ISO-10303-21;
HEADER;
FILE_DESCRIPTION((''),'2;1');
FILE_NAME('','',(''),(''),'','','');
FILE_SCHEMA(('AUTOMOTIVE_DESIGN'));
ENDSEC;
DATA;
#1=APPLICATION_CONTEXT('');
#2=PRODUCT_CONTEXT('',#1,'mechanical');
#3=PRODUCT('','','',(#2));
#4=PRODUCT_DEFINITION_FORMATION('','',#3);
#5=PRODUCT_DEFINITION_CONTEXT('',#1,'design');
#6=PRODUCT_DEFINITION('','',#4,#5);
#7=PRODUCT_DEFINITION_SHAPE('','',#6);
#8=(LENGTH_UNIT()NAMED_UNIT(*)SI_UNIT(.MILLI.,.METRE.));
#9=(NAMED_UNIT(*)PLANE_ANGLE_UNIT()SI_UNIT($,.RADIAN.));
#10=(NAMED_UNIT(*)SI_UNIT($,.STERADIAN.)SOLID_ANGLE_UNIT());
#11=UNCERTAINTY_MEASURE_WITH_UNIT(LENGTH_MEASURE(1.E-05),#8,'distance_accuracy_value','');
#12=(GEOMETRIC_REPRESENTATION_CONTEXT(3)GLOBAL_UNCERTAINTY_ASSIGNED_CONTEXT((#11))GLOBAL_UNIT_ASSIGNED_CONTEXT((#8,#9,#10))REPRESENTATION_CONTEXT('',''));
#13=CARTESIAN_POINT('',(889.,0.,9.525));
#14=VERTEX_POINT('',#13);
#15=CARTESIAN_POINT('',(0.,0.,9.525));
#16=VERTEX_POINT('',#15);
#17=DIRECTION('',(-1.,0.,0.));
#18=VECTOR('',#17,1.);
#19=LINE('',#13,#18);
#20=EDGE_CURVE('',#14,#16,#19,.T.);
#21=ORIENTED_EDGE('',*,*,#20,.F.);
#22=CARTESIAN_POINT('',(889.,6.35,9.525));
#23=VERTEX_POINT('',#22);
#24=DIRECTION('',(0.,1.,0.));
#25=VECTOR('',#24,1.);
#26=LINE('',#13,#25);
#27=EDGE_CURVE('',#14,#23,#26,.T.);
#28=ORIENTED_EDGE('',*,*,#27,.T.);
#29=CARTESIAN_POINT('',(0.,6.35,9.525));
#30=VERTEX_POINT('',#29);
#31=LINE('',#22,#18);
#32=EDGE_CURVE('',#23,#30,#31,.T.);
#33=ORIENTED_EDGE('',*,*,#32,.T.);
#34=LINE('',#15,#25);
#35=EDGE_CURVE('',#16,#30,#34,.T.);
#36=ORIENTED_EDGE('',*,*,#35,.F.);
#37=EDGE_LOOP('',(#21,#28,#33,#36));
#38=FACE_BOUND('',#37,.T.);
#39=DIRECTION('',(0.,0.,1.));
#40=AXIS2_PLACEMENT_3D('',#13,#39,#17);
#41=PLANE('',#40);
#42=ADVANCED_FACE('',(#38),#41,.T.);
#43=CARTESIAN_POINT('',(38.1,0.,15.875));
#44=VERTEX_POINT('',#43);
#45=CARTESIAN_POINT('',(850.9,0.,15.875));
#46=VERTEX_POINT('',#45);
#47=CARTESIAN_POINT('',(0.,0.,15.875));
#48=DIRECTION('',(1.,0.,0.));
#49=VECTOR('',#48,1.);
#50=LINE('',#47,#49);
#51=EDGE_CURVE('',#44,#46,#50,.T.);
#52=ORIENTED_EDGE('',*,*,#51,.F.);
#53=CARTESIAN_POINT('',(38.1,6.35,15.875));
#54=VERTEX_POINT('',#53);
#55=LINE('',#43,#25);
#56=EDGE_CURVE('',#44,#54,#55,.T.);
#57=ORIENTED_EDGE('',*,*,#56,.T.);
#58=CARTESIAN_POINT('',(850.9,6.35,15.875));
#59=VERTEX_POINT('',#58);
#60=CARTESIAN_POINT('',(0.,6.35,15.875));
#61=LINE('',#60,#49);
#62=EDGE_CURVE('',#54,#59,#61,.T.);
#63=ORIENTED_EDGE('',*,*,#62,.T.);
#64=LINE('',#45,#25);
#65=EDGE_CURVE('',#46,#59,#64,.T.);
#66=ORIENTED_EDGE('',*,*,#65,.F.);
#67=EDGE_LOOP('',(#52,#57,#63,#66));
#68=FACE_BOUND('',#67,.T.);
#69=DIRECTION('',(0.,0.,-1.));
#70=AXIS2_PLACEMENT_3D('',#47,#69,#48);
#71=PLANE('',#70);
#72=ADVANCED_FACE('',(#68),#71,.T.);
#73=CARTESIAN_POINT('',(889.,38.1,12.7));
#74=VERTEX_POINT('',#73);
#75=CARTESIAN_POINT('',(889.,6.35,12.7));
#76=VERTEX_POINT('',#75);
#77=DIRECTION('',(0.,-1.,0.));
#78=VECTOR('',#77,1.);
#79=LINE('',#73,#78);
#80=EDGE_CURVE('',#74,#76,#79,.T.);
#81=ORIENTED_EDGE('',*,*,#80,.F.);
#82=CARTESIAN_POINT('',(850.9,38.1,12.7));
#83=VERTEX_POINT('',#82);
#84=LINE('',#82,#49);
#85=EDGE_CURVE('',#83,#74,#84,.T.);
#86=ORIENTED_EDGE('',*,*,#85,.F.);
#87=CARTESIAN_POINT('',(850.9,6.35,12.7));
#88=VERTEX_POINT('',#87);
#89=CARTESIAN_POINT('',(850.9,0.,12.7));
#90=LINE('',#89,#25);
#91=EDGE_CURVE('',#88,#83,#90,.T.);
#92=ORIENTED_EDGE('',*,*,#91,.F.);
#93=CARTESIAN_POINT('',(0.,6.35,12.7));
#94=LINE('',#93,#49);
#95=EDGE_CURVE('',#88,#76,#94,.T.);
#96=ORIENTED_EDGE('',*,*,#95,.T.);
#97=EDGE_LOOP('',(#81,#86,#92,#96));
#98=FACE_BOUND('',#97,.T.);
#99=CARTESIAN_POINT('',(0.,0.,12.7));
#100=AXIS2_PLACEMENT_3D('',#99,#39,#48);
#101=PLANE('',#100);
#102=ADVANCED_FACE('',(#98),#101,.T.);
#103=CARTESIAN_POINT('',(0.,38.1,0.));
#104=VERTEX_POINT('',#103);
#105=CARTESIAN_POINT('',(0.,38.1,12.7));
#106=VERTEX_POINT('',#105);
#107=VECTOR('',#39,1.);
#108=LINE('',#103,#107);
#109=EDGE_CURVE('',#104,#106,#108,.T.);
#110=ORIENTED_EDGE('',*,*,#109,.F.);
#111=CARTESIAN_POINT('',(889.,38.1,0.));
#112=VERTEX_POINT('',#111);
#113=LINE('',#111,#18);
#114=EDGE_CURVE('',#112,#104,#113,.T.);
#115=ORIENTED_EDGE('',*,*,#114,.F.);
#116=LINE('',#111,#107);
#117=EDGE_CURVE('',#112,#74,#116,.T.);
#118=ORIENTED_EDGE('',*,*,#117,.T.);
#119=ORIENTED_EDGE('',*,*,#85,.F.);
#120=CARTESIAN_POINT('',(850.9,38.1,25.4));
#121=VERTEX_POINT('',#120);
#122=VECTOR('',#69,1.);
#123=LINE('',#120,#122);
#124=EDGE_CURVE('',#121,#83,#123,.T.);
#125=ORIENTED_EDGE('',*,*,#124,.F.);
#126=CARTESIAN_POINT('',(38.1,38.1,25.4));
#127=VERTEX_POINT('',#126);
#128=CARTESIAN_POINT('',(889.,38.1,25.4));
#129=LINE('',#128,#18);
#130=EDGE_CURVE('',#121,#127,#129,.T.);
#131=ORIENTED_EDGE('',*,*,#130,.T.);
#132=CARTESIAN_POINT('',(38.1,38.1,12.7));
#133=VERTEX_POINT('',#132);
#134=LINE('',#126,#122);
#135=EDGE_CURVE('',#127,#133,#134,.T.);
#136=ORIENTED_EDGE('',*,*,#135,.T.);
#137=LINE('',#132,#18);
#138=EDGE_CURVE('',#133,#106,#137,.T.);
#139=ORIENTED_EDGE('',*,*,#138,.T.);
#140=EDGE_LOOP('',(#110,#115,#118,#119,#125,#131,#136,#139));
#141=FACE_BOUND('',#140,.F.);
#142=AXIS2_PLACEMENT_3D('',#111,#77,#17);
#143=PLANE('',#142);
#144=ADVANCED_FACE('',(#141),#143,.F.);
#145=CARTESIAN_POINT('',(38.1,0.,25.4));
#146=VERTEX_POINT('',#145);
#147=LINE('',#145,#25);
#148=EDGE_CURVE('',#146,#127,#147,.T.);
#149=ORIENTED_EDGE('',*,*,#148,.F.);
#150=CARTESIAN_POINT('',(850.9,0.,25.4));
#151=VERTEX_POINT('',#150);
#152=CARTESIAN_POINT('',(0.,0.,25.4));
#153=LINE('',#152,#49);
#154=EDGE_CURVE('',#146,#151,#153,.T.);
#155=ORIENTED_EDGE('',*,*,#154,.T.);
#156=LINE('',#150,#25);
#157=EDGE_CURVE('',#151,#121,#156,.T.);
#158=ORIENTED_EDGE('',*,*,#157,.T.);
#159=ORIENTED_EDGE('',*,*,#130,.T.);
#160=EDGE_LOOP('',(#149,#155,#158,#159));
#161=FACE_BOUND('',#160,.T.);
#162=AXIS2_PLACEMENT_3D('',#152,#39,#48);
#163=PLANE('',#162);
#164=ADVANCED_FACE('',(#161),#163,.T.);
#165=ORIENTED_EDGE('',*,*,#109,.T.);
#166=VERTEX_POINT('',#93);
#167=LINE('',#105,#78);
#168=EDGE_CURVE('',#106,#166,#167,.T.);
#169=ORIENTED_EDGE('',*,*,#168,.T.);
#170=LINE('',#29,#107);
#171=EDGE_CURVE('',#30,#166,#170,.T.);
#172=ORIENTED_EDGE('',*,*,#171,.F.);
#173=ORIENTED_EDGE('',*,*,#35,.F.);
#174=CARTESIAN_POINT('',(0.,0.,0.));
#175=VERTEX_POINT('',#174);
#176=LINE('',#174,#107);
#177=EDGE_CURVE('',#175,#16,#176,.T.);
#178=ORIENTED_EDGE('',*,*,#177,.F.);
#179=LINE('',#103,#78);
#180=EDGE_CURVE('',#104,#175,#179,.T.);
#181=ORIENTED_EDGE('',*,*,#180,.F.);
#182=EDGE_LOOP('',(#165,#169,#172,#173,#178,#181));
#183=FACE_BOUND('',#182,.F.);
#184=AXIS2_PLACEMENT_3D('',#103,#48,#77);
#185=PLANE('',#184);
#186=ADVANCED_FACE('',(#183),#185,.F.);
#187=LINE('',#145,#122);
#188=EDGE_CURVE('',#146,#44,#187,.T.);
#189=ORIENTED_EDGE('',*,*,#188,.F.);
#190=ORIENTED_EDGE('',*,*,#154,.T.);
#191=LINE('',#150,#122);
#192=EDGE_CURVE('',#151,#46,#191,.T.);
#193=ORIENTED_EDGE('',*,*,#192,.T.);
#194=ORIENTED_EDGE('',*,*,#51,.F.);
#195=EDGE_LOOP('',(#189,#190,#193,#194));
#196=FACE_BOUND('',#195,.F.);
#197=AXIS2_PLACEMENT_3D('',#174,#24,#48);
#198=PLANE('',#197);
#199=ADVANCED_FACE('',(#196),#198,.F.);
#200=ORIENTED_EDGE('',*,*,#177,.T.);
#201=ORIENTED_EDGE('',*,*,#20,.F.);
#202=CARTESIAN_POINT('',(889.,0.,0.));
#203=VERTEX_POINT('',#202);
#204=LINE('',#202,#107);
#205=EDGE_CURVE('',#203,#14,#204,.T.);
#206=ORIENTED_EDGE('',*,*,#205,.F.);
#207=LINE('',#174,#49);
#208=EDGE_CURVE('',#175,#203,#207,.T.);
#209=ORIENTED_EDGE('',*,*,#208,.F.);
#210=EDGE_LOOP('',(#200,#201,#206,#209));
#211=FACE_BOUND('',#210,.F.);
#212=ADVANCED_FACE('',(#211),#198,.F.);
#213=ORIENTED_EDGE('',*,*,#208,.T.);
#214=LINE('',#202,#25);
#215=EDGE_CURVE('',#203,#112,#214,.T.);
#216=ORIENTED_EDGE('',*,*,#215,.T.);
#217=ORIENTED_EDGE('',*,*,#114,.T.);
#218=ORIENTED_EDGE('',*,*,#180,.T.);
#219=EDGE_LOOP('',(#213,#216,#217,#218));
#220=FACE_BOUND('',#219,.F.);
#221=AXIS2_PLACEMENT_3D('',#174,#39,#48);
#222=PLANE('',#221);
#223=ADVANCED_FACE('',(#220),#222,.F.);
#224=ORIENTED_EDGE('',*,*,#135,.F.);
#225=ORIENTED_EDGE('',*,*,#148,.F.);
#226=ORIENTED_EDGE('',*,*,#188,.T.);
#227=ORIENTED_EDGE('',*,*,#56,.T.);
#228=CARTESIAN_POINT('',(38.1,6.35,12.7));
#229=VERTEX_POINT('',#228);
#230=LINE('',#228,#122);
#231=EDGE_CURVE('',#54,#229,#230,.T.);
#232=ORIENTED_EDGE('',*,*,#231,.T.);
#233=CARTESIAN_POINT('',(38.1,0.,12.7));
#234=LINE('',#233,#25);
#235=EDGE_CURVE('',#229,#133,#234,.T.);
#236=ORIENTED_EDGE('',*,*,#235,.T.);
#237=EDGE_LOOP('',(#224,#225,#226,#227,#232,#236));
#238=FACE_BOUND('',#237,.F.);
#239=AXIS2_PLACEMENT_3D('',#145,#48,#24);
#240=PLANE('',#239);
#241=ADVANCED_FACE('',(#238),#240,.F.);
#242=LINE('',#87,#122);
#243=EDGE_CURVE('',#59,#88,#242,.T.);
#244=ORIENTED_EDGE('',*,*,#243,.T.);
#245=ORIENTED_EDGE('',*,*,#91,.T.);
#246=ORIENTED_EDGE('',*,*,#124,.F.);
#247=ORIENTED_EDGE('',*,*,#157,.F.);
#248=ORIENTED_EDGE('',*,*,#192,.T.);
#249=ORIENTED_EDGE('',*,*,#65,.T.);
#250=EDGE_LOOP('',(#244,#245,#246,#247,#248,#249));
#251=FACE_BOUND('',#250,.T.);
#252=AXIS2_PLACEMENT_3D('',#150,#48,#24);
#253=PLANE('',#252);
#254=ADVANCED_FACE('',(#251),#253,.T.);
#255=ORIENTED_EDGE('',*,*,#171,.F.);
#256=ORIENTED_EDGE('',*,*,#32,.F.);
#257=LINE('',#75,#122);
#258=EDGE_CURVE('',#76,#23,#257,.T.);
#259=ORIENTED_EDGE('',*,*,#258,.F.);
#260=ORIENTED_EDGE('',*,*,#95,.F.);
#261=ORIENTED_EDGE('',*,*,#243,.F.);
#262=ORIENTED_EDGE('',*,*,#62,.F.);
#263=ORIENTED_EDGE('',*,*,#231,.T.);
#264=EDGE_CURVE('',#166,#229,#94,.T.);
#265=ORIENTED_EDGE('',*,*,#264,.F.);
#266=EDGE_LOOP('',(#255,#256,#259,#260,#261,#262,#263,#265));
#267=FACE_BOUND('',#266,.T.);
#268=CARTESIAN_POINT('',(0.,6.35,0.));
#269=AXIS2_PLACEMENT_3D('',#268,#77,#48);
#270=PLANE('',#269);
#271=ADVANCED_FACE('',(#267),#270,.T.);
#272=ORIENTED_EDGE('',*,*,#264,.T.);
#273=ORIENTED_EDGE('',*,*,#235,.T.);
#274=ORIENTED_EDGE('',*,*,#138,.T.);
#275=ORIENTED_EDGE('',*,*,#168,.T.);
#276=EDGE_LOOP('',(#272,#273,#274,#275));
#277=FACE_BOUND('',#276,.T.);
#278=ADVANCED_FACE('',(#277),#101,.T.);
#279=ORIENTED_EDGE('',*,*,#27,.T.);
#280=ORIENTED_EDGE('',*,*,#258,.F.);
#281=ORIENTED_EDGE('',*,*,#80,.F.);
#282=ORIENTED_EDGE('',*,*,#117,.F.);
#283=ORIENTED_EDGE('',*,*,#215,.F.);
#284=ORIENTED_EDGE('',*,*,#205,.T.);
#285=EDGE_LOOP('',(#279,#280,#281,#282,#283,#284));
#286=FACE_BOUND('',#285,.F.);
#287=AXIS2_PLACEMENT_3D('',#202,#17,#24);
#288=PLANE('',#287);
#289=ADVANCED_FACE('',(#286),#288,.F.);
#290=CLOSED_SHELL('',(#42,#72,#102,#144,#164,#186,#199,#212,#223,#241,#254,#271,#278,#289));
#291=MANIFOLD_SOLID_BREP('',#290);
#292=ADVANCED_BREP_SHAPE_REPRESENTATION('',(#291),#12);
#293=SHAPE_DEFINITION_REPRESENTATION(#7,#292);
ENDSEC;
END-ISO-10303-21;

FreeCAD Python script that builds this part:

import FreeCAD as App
import Part
import Sketcher
Q = App.Units.Quantity

doc = App.newDocument("Part")
body = doc.addObject("PartDesign::Body", "Body")

# Sketch on XY plane
sketch1 = body.newObject("Sketcher::SketchObject", "Sketch")
sketch1.AttachmentSupport = (doc.getObject("XY_Plane"), [""])
sketch1.MapMode = "FlatFace"
sketch1.addGeometry(Part.LineSegment(App.Vector(0, 38, 0), App.Vector(0, 0, 0)), False)
sketch1.addGeometry(Part.LineSegment(App.Vector(0, 0, 0), App.Vector(889, 0, 0)), False)
sketch1.addGeometry(Part.LineSegment(App.Vector(889, 0, 0), App.Vector(889, 38, 0)), False)
sketch1.addGeometry(Part.LineSegment(App.Vector(889, 38, 0), App.Vector(0, 38, 0)), False)
sketch1.addConstraint(Sketcher.Constraint("Coincident", 0, 2, 1, 1))
sketch1.addConstraint(Sketcher.Constraint("Coincident", 1, 2, 2, 1))
sketch1.addConstraint(Sketcher.Constraint("Coincident", 2, 2, 3, 1))
sketch1.addConstraint(Sketcher.Constraint("Coincident", 3, 2, 0, 1))
sketch1.addConstraint(Sketcher.Constraint("Vertical", 0))
sketch1.addConstraint(Sketcher.Constraint("Horizontal", 1))
sketch1.addConstraint(Sketcher.Constraint("Vertical", 2))
sketch1.addConstraint(Sketcher.Constraint("Horizontal", 3))
sketch1.addConstraint(Sketcher.Constraint("Coincident", 0, 2, -1, 1))
sketch1.addConstraint(Sketcher.Constraint("DistanceX", 1, 1, 1, 2, Q("35 in")))
sketch1.addConstraint(Sketcher.Constraint("DistanceY", 0, 2, 0, 1, Q("1.5 in")))
pad1 = body.newObject("PartDesign::Pad", "Pad")
pad1.Profile = sketch1
pad1.Length = Q("1 in")

# Sketch on XY plane
sketch2 = body.newObject("Sketcher::SketchObject", "Sketch001")
sketch2.AttachmentSupport = (doc.getObject("XY_Plane"), [""])
sketch2.MapMode = "FlatFace"
sketch2.AttachmentOffset = App.Placement(App.Vector(0, 0, 1 * 25.4), App.Rotation())
sketch2.addGeometry(Part.LineSegment(App.Vector(851, 38, 0), App.Vector(851, 0, 0)), False)
sketch2.addGeometry(Part.LineSegment(App.Vector(851, 0, 0), App.Vector(889, 0, 0)), False)
sketch2.addGeometry(Part.LineSegment(App.Vector(889, 0, 0), App.Vector(889, 38, 0)), False)
sketch2.addGeometry(Part.LineSegment(App.Vector(889, 38, 0), App.Vector(851, 38, 0)), False)
sketch2.addConstraint(Sketcher.Constraint("Coincident", 0, 2, 1, 1))
sketch2.addConstraint(Sketcher.Constraint("Coincident", 1, 2, 2, 1))
sketch2.addConstraint(Sketcher.Constraint("Coincident", 2, 2, 3, 1))
sketch2.addConstraint(Sketcher.Constraint("Coincident", 3, 2, 0, 1))
sketch2.addConstraint(Sketcher.Constraint("Vertical", 0))
sketch2.addConstraint(Sketcher.Constraint("Horizontal", 1))
sketch2.addConstraint(Sketcher.Constraint("Vertical", 2))
sketch2.addConstraint(Sketcher.Constraint("Horizontal", 3))
sketch2.addConstraint(Sketcher.Constraint("PointOnObject", 0, 2, -1))
sketch2.addConstraint(Sketcher.Constraint("Equal", 3, 0))
sketch2.addConstraint(Sketcher.Constraint("DistanceX", 1, 1, 1, 2, Q("1.5 in")))
sketch2.addConstraint(Sketcher.Constraint("DistanceX", -1, 1, 1, 2, Q("35 in")))
pocket1 = body.newObject("PartDesign::Pocket", "Pocket")
pocket1.Profile = sketch2
pocket1.Length = Q("0.5 in")

# Sketch on XY plane
sketch3 = body.newObject("Sketcher::SketchObject", "Sketch002")
sketch3.AttachmentSupport = (doc.getObject("XY_Plane"), [""])
sketch3.MapMode = "FlatFace"
sketch3.AttachmentOffset = App.Placement(App.Vector(0, 0, 1 * 25.4), App.Rotation())
sketch3.addGeometry(Part.LineSegment(App.Vector(0, 38, 0), App.Vector(0, 0, 0)), False)
sketch3.addGeometry(Part.LineSegment(App.Vector(0, 0, 0), App.Vector(38, 0, 0)), False)
sketch3.addGeometry(Part.LineSegment(App.Vector(38, 0, 0), App.Vector(38, 38, 0)), False)
sketch3.addGeometry(Part.LineSegment(App.Vector(38, 38, 0), App.Vector(0, 38, 0)), False)
sketch3.addConstraint(Sketcher.Constraint("Coincident", 0, 2, 1, 1))
sketch3.addConstraint(Sketcher.Constraint("Coincident", 1, 2, 2, 1))
sketch3.addConstraint(Sketcher.Constraint("Coincident", 2, 2, 3, 1))
sketch3.addConstraint(Sketcher.Constraint("Coincident", 3, 2, 0, 1))
sketch3.addConstraint(Sketcher.Constraint("Vertical", 0))
sketch3.addConstraint(Sketcher.Constraint("Horizontal", 1))
sketch3.addConstraint(Sketcher.Constraint("Vertical", 2))
sketch3.addConstraint(Sketcher.Constraint("Horizontal", 3))
sketch3.addConstraint(Sketcher.Constraint("Coincident", 0, 2, -1, 1))
sketch3.addConstraint(Sketcher.Constraint("Equal", 3, 0))
sketch3.addConstraint(Sketcher.Constraint("DistanceX", 1, 1, 1, 2, Q("1.5 in")))
pocket2 = body.newObject("PartDesign::Pocket", "Pocket001")
pocket2.Profile = sketch3
pocket2.Length = Q("0.5 in")

# Sketch on XZ plane
sketch4 = body.newObject("Sketcher::SketchObject", "Sketch003")
sketch4.AttachmentSupport = (doc.getObject("XZ_Plane"), [""])
sketch4.MapMode = "FlatFace"
sketch4.addGeometry(Part.LineSegment(App.Vector(889, 10, 0), App.Vector(889, 16, 0)), False)
sketch4.addGeometry(Part.LineSegment(App.Vector(889, 16, 0), App.Vector(0, 16, 0)), False)
sketch4.addGeometry(Part.LineSegment(App.Vector(0, 16, 0), App.Vector(0, 10, 0)), False)
sketch4.addGeometry(Part.LineSegment(App.Vector(0, 10, 0), App.Vector(889, 10, 0)), False)
sketch4.addConstraint(Sketcher.Constraint("Coincident", 0, 2, 1, 1))
sketch4.addConstraint(Sketcher.Constraint("Coincident", 1, 2, 2, 1))
sketch4.addConstraint(Sketcher.Constraint("Coincident", 2, 2, 3, 1))
sketch4.addConstraint(Sketcher.Constraint("Coincident", 3, 2, 0, 1))
sketch4.addConstraint(Sketcher.Constraint("Vertical", 0))
sketch4.addConstraint(Sketcher.Constraint("Horizontal", 1))
sketch4.addConstraint(Sketcher.Constraint("Vertical", 2))
sketch4.addConstraint(Sketcher.Constraint("Horizontal", 3))
sketch4.addConstraint(Sketcher.Constraint("PointOnObject", 1, 2, -2))
sketch4.addConstraint(Sketcher.Constraint("DistanceX", 1, 2, 1, 1, Q("35 in")))
sketch4.addConstraint(Sketcher.Constraint("DistanceY", 0, 1, 0, 2, Q("0.25 in")))
sketch4.addConstraint(Sketcher.Constraint("DistanceY", -1, 1, 0, 2, Q("0.625 in")))
pocket3 = body.newObject("PartDesign::Pocket", "Pocket002")
pocket3.Profile = sketch4
pocket3.Length = Q("0.25 in")

doc.recompute()
